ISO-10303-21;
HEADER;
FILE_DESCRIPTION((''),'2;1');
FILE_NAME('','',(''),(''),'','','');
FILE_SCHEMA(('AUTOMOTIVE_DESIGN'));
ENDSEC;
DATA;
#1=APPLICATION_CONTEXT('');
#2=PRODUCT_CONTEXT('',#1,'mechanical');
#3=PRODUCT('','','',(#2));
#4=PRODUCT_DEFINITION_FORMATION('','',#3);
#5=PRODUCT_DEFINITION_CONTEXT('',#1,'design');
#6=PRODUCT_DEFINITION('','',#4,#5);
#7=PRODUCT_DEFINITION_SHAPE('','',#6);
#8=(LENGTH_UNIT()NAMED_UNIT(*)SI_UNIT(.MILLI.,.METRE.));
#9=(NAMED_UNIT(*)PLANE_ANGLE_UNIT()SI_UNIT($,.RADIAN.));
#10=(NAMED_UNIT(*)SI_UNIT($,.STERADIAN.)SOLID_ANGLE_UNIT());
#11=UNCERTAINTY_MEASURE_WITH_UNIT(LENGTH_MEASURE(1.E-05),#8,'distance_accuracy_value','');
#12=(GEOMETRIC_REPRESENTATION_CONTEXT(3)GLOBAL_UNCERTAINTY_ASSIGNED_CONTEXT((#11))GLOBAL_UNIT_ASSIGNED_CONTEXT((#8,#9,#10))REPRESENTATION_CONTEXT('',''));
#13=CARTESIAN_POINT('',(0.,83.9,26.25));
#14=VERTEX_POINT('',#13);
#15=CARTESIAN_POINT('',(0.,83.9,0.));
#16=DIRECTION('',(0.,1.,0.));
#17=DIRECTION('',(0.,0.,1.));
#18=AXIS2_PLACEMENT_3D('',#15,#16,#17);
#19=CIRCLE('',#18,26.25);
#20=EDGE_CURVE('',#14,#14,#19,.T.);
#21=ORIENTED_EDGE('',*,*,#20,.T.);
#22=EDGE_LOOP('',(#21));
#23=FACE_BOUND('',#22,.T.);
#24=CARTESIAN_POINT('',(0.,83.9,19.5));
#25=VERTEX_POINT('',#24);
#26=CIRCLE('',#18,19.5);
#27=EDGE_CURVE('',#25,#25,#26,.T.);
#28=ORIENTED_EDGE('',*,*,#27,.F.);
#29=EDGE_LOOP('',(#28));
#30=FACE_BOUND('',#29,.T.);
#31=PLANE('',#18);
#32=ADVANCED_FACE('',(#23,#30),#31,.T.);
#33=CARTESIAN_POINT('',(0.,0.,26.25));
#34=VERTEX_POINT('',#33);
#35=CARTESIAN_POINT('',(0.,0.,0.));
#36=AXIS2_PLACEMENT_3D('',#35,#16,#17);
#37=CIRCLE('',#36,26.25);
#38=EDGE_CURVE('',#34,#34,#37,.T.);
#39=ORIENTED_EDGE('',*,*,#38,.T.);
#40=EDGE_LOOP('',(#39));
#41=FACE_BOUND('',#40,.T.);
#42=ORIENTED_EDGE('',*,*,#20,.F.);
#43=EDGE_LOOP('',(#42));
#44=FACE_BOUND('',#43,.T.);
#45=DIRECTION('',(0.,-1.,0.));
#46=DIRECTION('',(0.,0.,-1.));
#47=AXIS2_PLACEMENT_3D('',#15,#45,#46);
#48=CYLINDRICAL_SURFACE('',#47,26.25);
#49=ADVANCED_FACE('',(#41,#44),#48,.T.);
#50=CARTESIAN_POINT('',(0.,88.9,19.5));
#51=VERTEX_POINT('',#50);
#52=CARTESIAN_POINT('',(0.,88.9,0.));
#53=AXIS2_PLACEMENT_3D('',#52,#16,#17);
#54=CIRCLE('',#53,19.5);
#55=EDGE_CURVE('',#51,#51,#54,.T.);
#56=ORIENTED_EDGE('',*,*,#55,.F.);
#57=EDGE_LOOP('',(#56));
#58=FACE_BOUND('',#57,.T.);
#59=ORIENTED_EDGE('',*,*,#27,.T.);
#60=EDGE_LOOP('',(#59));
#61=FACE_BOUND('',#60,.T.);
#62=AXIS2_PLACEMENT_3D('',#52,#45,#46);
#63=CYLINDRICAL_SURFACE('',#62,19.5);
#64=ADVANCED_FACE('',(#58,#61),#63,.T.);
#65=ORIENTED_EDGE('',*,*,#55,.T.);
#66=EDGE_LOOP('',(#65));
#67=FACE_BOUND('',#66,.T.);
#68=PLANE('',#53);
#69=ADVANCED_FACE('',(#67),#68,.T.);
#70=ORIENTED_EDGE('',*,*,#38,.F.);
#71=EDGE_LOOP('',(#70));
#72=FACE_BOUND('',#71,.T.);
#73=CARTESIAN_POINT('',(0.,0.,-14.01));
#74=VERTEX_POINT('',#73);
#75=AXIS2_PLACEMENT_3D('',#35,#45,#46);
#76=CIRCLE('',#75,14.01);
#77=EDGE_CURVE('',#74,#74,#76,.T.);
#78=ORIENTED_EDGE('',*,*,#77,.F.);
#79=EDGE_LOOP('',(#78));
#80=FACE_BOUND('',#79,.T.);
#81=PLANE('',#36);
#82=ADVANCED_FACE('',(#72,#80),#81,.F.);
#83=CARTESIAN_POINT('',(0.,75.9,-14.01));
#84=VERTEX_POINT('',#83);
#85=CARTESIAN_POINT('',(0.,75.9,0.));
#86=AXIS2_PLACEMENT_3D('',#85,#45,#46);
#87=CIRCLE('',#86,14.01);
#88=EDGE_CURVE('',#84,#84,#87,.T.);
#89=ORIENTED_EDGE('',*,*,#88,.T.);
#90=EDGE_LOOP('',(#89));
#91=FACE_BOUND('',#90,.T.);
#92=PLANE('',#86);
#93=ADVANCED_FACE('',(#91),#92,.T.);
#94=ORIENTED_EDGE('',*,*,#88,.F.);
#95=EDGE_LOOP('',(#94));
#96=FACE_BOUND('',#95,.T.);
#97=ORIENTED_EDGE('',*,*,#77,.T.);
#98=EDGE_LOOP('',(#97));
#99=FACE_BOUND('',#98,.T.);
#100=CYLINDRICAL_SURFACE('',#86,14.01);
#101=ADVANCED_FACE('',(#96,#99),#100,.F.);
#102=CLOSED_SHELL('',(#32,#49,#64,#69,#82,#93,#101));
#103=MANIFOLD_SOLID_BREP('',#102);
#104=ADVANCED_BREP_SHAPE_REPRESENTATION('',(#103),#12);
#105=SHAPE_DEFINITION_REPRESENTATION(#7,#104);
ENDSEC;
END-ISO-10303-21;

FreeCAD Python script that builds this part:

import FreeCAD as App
import Part
import Sketcher
Q = App.Units.Quantity

doc = App.newDocument("Part")
body = doc.addObject("PartDesign::Body", "Body")

# Sketch on XZ plane
sketch1 = body.newObject("Sketcher::SketchObject", "Sketch")
sketch1.AttachmentSupport = (doc.getObject("XZ_Plane"), [""])
sketch1.MapMode = "FlatFace"
sketch1.addGeometry(Part.Circle(App.Vector(0, 0, 0), App.Vector(0, 0, 1), 26), False)
sketch1.addConstraint(Sketcher.Constraint("Coincident", 0, 3, -1, 1))
sketch1.addConstraint(Sketcher.Constraint("Diameter", 0, Q("52.5 mm")))
pad1 = body.newObject("PartDesign::Pad", "Pad")
pad1.Profile = sketch1
pad1.Length = 83.9
pad1.Reversed = True

# Sketch on XZ plane
sketch2 = body.newObject("Sketcher::SketchObject", "Sketch001")
sketch2.AttachmentSupport = (doc.getObject("XZ_Plane"), [""])
sketch2.MapMode = "FlatFace"
sketch2.addGeometry(Part.Circle(App.Vector(0, 0, 0), App.Vector(0, 0, 1), 14), False)
sketch2.addConstraint(Sketcher.Constraint("Coincident", 0, 3, -1, 1))
sketch2.addConstraint(Sketcher.Constraint("Diameter", 0, Q("28.02 mm")))
pocket1 = body.newObject("PartDesign::Pocket", "Pocket")
pocket1.Profile = sketch2
pocket1.Length = 75.9

# Sketch on XZ plane
sketch3 = body.newObject("Sketcher::SketchObject", "Sketch002")
sketch3.AttachmentSupport = (doc.getObject("XZ_Plane"), [""])
sketch3.MapMode = "FlatFace"
sketch3.AttachmentOffset = App.Placement(App.Vector(0, 0, -83.9), App.Rotation())
sketch3.addGeometry(Part.Circle(App.Vector(0, 0, 0), App.Vector(0, 0, 1), 20), False)
sketch3.addConstraint(Sketcher.Constraint("Coincident", 0, 3, -1, 1))
sketch3.addConstraint(Sketcher.Constraint("Diameter", 0, Q("39 mm")))
pad2 = body.newObject("PartDesign::Pad", "Pad001")
pad2.Profile = sketch3
pad2.Length = 5
pad2.Reversed = True

doc.recompute()
